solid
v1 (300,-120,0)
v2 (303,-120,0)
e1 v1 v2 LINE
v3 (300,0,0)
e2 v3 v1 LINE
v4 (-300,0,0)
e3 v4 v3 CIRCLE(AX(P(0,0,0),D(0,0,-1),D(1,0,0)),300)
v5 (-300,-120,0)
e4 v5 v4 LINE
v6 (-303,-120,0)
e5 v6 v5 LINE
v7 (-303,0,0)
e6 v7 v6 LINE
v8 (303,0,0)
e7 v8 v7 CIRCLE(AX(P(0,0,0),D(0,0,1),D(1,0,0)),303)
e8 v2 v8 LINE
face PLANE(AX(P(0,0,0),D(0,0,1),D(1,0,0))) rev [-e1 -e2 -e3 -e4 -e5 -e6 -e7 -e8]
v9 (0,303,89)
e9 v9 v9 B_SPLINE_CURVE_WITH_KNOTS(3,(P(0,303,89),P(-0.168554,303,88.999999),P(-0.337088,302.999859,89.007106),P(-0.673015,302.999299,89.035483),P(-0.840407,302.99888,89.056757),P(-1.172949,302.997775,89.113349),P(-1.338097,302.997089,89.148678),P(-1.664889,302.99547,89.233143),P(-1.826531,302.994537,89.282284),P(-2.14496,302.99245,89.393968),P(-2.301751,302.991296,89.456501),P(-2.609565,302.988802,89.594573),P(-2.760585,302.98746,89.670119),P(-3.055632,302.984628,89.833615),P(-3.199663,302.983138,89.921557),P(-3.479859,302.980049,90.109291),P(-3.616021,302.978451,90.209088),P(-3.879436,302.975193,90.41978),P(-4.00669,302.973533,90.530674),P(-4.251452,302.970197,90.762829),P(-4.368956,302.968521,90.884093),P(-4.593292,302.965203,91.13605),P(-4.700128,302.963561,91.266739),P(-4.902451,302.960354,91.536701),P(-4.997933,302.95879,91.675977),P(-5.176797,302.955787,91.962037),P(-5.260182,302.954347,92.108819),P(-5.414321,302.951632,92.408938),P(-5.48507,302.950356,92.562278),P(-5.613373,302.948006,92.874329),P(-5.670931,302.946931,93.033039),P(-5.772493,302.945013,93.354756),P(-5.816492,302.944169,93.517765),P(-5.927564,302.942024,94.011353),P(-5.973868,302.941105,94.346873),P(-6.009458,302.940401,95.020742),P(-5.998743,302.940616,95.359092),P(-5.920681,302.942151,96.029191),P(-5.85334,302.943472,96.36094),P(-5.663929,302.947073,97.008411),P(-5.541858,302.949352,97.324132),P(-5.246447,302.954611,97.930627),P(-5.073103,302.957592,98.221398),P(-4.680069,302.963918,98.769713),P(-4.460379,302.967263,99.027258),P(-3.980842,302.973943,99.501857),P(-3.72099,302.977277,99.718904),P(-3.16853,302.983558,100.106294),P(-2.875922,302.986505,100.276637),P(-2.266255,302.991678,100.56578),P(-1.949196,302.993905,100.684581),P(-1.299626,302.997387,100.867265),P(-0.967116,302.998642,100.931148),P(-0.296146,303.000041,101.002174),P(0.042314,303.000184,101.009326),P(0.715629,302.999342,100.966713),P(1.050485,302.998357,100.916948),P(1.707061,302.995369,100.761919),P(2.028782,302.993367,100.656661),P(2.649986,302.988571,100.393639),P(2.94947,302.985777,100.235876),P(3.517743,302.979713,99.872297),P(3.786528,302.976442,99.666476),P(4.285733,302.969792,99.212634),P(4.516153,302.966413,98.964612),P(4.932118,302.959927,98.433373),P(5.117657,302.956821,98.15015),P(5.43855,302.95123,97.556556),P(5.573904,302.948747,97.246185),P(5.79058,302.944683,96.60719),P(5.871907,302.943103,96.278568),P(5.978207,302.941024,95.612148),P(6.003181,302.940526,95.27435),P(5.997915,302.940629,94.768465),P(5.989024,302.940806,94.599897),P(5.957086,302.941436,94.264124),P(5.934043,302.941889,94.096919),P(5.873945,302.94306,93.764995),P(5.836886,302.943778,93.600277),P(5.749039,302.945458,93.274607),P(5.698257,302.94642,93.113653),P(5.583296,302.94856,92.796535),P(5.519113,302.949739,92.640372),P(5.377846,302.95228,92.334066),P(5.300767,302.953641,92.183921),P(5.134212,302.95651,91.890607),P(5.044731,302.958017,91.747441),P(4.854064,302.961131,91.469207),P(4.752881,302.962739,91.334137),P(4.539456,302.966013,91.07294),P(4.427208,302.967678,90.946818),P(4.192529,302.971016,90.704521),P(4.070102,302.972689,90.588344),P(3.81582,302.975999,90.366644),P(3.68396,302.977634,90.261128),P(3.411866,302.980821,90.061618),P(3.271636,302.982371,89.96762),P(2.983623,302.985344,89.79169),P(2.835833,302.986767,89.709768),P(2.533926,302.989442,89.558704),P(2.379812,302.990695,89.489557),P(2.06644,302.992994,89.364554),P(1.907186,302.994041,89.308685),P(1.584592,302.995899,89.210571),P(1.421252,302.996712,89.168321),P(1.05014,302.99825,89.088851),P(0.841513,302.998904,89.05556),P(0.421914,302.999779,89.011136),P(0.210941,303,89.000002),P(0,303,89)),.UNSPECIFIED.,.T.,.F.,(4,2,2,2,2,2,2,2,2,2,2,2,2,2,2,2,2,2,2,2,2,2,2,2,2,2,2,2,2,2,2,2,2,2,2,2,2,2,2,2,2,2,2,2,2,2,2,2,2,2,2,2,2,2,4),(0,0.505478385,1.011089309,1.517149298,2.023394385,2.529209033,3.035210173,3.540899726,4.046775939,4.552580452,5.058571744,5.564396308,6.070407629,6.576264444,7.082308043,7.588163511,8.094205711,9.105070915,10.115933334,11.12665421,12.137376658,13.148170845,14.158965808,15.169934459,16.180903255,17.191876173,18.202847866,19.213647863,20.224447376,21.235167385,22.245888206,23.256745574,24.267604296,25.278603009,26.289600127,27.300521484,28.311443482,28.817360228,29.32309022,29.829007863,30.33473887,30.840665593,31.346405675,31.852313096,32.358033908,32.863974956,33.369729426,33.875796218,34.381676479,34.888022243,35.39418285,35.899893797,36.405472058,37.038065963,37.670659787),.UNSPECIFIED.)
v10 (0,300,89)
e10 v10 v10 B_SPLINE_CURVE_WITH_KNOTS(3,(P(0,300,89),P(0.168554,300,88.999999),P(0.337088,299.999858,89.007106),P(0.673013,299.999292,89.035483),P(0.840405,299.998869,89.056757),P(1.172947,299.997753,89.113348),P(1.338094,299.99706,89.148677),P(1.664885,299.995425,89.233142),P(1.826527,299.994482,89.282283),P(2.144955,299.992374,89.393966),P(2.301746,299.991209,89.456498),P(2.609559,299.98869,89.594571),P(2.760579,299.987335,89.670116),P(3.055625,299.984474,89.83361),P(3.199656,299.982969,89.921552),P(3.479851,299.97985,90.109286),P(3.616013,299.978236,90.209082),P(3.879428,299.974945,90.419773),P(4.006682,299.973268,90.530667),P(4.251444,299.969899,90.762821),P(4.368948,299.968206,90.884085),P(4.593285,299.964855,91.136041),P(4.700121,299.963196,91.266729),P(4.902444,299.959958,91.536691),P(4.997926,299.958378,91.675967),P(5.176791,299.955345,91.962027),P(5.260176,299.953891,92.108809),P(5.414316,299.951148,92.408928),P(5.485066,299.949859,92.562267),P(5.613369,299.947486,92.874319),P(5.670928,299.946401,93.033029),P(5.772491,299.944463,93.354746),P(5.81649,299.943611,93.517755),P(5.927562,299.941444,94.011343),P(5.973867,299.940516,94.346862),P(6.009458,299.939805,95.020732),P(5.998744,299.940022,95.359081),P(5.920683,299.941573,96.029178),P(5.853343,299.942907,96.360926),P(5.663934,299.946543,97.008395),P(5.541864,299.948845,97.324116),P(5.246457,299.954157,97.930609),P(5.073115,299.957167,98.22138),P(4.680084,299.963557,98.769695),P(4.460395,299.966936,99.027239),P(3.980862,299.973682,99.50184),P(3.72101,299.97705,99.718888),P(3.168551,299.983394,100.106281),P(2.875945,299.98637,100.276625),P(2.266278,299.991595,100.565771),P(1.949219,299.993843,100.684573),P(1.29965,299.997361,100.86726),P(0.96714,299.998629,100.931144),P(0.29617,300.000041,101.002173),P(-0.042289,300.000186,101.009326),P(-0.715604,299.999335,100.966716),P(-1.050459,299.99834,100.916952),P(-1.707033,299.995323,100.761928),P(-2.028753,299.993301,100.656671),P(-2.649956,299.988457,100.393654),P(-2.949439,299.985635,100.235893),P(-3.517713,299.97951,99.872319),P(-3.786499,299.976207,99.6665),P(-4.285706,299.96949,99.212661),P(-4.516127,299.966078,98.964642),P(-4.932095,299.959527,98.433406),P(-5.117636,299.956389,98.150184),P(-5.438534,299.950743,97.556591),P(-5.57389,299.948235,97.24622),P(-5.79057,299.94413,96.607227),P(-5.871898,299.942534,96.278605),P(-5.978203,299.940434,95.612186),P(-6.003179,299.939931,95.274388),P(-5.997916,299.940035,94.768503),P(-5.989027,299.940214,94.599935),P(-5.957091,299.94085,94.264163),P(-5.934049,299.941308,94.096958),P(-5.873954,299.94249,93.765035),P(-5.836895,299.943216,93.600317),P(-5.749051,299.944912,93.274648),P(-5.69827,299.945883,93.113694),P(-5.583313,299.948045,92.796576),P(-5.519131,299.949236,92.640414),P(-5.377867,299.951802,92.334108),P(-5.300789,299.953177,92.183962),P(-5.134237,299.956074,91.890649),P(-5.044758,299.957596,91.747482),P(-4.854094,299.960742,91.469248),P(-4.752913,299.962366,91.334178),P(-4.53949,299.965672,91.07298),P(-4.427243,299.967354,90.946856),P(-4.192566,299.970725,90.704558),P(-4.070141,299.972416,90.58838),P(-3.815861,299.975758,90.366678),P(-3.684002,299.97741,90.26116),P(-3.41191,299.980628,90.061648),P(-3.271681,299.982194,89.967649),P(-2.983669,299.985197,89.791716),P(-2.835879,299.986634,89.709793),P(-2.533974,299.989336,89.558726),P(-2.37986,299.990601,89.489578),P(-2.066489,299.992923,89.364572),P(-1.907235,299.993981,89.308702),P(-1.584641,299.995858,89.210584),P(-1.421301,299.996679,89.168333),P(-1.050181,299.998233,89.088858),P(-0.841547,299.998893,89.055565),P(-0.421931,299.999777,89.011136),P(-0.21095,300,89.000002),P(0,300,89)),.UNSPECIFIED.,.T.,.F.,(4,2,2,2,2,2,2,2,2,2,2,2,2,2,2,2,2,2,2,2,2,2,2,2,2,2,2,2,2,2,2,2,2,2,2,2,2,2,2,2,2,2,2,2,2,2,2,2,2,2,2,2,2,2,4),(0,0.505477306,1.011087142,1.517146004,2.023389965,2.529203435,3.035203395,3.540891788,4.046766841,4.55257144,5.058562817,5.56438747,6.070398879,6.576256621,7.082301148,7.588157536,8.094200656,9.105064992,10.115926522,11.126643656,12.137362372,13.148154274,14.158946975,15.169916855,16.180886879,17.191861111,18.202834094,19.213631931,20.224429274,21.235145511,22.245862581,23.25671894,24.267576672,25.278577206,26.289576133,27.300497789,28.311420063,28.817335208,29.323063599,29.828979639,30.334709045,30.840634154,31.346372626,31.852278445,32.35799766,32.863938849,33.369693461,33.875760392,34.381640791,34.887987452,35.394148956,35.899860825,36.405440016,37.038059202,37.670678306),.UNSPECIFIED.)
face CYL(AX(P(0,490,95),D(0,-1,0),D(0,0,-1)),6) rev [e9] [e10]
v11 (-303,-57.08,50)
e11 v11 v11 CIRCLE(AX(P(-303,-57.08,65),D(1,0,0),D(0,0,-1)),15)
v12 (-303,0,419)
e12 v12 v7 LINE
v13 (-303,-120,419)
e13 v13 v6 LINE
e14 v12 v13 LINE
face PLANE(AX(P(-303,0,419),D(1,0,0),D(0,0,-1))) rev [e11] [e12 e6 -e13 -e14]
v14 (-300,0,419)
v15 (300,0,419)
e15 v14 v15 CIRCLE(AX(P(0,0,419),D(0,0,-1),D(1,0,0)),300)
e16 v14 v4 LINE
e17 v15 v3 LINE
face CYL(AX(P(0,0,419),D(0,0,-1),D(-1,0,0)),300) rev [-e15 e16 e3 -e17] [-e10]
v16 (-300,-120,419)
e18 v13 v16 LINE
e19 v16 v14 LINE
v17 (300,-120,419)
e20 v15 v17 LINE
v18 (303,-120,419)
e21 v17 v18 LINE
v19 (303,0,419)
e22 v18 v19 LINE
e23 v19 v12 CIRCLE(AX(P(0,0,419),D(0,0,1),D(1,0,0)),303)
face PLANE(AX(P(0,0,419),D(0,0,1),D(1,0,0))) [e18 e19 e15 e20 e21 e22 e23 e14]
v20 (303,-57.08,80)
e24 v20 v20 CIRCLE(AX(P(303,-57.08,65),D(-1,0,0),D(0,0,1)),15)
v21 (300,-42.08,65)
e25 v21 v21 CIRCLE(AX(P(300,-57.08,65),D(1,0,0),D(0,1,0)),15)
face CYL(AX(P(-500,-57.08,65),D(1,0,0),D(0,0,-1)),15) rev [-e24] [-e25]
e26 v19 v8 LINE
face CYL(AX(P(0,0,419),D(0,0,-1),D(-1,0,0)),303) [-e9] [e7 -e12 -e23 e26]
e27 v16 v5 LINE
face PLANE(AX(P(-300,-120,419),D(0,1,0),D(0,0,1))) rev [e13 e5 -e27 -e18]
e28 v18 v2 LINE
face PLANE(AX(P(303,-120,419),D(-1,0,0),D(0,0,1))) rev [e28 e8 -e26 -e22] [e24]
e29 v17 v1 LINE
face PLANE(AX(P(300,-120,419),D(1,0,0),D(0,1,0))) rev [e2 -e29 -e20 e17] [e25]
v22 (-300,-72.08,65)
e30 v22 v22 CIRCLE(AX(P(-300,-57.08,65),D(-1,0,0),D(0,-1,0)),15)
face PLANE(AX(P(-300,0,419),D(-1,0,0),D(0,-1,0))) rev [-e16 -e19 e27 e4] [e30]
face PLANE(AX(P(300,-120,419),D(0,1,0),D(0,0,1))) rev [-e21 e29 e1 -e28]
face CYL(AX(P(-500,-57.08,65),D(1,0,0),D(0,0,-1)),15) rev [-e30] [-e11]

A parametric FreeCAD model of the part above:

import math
import FreeCAD as App
import Part
import Sketcher

V = App.Vector
Q = App.Units.Quantity

doc = App.newDocument("Part")
body = doc.addObject("PartDesign::Body", "Body")

# Sketch on XY plane
sketch1 = body.newObject("Sketcher::SketchObject", "Sketch")
sketch1.AttachmentSupport = (doc.getObject("XY_Plane"), [""])
sketch1.MapMode = "FlatFace"
sketch1.addGeometry([
    Part.LineSegment(V(-300, -120, 0), V(-300, 0, 0)),  # 0
    Part.ArcOfCircle(Part.Circle(V(0, 0, 0), V(0, 0, 1), 300), math.radians(0), math.radians(180)),  # 1
    Part.LineSegment(V(300, 0, 0), V(300, -120, 0)),  # 2
    Part.LineSegment(V(300, -120, 0), V(303, -120, 0)),  # 3
    Part.LineSegment(V(303, -120, 0), V(303, 0, 0)),  # 4
    Part.ArcOfCircle(Part.Circle(V(0, 0, 0), V(0, 0, 1), 303), math.radians(0), math.radians(180)),  # 5
    Part.LineSegment(V(-303, 0, 0), V(-303, -120, 0)),  # 6
    Part.LineSegment(V(-303, -120, 0), V(-300, -120, 0)),  # 7
], False)
sketch1.addConstraint([
    Sketcher.Constraint("Tangent", 0, 2, 1, 2),
    Sketcher.Constraint("Tangent", 1, 1, 2, 1),
    Sketcher.Constraint("Coincident", 2, 2, 3, 1),
    Sketcher.Constraint("Coincident", 3, 2, 4, 1),
    Sketcher.Constraint("Tangent", 4, 2, 5, 1),
    Sketcher.Constraint("Tangent", 5, 2, 6, 1),
    Sketcher.Constraint("Coincident", 6, 2, 7, 1),
    Sketcher.Constraint("Coincident", 7, 2, 0, 1),
    Sketcher.Constraint("Vertical", 0),
    Sketcher.Constraint("Vertical", 2),
    Sketcher.Constraint("Horizontal", 3),
    Sketcher.Constraint("Vertical", 4),
    Sketcher.Constraint("Vertical", 6),
    Sketcher.Constraint("Horizontal", 7),
    Sketcher.Constraint("Coincident", 1, 3, -1, 1),
    Sketcher.Constraint("Coincident", 5, 3, -1, 1),
    Sketcher.Constraint("Horizontal", 3, 2, 6, 2),
    Sketcher.Constraint("Radius", 1, Q("300 mm")),
    Sketcher.Constraint("Radius", 5, Q("303 mm")),
    Sketcher.Constraint("DistanceY", 0, 1, 0, 2, Q("120 mm")),
])
pad1 = body.newObject("PartDesign::Pad", "Pad")
pad1.Profile = sketch1
pad1.Length = 419

# Sketch on XZ plane
sketch2 = body.newObject("Sketcher::SketchObject", "Sketch001")
sketch2.AttachmentSupport = (doc.getObject("XZ_Plane"), [""])
sketch2.MapMode = "FlatFace"
sketch2.addGeometry(Part.Circle(V(0, 95, 0), V(0, 0, 1), 6), False)
sketch2.addConstraint([
    Sketcher.Constraint("PointOnObject", 0, 3, -2),
    Sketcher.Constraint("Diameter", 0, Q("12 mm")),
    Sketcher.Constraint("DistanceY", -1, 1, 0, 3, Q("95 mm")),
])
pocket1 = body.newObject("PartDesign::Pocket", "Pocket")
pocket1.Profile = sketch2
pocket1.Length = 490

# Sketch on YZ plane
sketch3 = body.newObject("Sketcher::SketchObject", "Sketch002")
sketch3.AttachmentSupport = (doc.getObject("YZ_Plane"), [""])
sketch3.MapMode = "FlatFace"
sketch3.addGeometry(Part.Circle(V(-57, 65, 0), V(0, 0, 1), 15), False)
sketch3.addConstraint([
    Sketcher.Constraint("Diameter", 0, Q("30 mm")),
    Sketcher.Constraint("DistanceY", -1, 1, 0, 3, Q("65 mm")),
    Sketcher.Constraint("DistanceX", 0, 3, -1, 1, Q("57.08 mm")),
])
pocket2 = body.newObject("PartDesign::Pocket", "Pocket001")
pocket2.Profile = sketch3
pocket2.Length = 1000
pocket2.Midplane = True

doc.recompute()
